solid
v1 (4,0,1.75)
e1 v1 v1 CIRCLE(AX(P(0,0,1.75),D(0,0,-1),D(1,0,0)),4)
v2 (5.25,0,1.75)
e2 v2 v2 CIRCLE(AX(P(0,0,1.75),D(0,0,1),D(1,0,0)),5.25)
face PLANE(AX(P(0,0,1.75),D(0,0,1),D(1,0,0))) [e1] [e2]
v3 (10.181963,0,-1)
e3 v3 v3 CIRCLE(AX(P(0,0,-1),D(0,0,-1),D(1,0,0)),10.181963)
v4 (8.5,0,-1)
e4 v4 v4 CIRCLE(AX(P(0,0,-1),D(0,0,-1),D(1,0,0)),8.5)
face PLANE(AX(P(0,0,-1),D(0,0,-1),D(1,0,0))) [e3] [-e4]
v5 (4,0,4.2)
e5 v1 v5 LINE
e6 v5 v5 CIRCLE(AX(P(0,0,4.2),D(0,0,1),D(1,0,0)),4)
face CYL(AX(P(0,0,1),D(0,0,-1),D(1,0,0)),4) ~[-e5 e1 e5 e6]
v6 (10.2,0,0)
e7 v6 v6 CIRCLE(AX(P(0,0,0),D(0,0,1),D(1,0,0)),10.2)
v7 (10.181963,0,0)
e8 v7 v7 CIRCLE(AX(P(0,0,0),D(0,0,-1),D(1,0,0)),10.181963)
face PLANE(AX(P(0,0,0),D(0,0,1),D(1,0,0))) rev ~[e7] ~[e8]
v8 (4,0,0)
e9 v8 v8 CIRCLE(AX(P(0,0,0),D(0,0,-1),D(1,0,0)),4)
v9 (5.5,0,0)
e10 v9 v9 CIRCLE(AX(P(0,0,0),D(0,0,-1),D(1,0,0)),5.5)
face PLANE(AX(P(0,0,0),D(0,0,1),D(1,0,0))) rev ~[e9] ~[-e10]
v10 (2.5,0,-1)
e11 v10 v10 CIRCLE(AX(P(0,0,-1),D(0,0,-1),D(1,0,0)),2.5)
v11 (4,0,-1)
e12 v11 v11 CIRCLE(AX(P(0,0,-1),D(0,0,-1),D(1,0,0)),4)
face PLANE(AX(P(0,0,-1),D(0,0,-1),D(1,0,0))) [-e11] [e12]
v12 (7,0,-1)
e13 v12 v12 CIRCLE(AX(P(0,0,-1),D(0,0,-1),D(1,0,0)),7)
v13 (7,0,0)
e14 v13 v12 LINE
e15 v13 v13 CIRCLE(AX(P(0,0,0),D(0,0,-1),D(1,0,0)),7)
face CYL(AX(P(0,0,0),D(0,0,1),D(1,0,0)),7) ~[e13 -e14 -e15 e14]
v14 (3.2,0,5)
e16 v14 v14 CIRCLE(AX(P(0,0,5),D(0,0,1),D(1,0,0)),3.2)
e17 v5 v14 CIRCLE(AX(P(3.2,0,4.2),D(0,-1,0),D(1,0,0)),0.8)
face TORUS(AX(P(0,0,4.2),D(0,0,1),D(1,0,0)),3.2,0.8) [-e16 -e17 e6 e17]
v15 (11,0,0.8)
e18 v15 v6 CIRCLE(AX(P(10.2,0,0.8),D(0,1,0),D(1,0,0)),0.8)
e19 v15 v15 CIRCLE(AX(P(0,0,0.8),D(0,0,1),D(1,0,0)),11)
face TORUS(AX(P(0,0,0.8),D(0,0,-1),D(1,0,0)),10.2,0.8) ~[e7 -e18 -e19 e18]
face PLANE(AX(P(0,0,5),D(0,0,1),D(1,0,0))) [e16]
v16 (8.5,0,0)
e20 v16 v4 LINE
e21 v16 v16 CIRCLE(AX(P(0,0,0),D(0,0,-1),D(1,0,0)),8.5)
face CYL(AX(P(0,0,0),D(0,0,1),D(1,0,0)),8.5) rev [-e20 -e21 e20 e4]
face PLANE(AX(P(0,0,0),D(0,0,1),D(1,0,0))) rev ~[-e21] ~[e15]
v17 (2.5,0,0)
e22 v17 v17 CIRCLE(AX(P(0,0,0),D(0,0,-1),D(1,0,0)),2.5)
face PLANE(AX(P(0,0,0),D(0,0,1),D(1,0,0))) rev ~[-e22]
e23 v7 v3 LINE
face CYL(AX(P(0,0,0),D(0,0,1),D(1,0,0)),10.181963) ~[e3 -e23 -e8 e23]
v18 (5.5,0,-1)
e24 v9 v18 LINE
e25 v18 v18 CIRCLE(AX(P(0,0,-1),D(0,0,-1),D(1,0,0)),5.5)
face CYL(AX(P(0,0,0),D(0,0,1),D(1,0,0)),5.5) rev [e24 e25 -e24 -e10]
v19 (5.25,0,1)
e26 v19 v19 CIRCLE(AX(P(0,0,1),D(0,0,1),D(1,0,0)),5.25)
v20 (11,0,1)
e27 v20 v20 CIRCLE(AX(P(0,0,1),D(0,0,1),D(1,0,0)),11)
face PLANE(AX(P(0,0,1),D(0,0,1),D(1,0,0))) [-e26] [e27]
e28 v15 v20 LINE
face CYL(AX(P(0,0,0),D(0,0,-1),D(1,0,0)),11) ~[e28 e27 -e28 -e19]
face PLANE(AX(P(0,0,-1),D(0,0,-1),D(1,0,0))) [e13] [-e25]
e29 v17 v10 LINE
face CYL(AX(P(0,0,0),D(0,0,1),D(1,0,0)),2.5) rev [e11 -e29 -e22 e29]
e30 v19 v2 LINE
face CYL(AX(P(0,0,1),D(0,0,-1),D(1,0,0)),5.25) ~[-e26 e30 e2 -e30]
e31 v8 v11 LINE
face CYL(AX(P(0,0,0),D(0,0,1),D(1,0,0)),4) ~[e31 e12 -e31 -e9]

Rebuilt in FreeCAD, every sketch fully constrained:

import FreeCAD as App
import Part
import Sketcher
from FreeCAD import Vector


def edges_at(feature, points):
    """Names of the edges that pass closest to the given points."""
    edges = feature.Shape.Edges
    near = lambda p: min(range(len(edges)), key=lambda i: edges[i].distToShape(Part.Vertex(*p))[0])
    return sorted({f"Edge{near(p) + 1}" for p in points})

doc = App.newDocument("Part")
body = doc.addObject("PartDesign::Body", "Body")

sketch1 = doc.addObject("Sketcher::SketchObject", "Sketch")
body.addObject(sketch1)
sketch1.AttachmentSupport = (doc.XY_Plane, [""])
sketch1.MapMode = "FlatFace"
sketch1.addGeometry(Part.Circle(Vector(0, 0, 0), Vector(0, 0, 1), 11), False)
sketch1.addConstraint([
    Sketcher.Constraint("Coincident", 0, 3, -1, 1),
    Sketcher.Constraint("Diameter", 0, 22.0),
])
pad1 = doc.addObject("PartDesign::Pad", "Pad")
body.addObject(pad1)
pad1.Profile = sketch1
pad1.Length = 1

sketch2 = doc.addObject("Sketcher::SketchObject", "Sketch001")
body.addObject(sketch2)
sketch2.AttachmentSupport = (doc.XY_Plane, [""])
sketch2.MapMode = "FlatFace"
sketch2.AttachmentOffset = App.Placement(Vector(0, 0, 1), App.Rotation())
sketch2.addGeometry(Part.Circle(Vector(0, 0, 0), Vector(0, 0, 1), 4), False)
sketch2.addConstraint([
    Sketcher.Constraint("Coincident", 0, 3, -1, 1),
    Sketcher.Constraint("Diameter", 0, 8.0),
])
pad2 = doc.addObject("PartDesign::Pad", "Pad001")
body.addObject(pad2)
pad2.Profile = sketch2
pad2.Length = 4
doc.recompute()

fillet = doc.addObject("PartDesign::Fillet", "Fillet")
body.addObject(fillet)
fillet.Base = (pad2, edges_at(pad2, [(-11, 0, 0), (-4, 0, 5)]))
fillet.Radius = 0.8

sketch3 = doc.addObject("Sketcher::SketchObject", "Sketch002")
body.addObject(sketch3)
sketch3.AttachmentSupport = (doc.XY_Plane, [""])
sketch3.MapMode = "FlatFace"
sketch3.AttachmentOffset = App.Placement(Vector(0, 0, 1), App.Rotation())
sketch3.addGeometry(Part.Circle(Vector(0, 0, 0), Vector(0, 0, 1), 5), False)
sketch3.addConstraint([
    Sketcher.Constraint("Coincident", 0, 3, -1, 1),
    Sketcher.Constraint("Diameter", 0, 10.5),
])
pad3 = doc.addObject("PartDesign::Pad", "Pad002")
body.addObject(pad3)
pad3.Profile = sketch3
pad3.Length = 0.75

sketch4 = doc.addObject("Sketcher::SketchObject", "Sketch003")
body.addObject(sketch4)
sketch4.AttachmentSupport = (doc.XY_Plane, [""])
sketch4.MapMode = "FlatFace"
sketch4.addGeometry([
    Part.Circle(Vector(0, 0, 0), Vector(0, 0, 1), 10.2),
    Part.Circle(Vector(0, 0, 0), Vector(0, 0, 1), 8.5),
    Part.Circle(Vector(0, 0, 0), Vector(0, 0, 1), 7),
    Part.Circle(Vector(0, 0, 0), Vector(0, 0, 1), 5.5),
    Part.Circle(Vector(0, 0, 0), Vector(0, 0, 1), 4),
    Part.Circle(Vector(0, 0, 0), Vector(0, 0, 1), 2.5),
], False)
sketch4.addConstraint([
    Sketcher.Constraint("Coincident", 0, 3, -1, 1),
    Sketcher.Constraint("Coincident", 1, 3, -1, 1),
    Sketcher.Constraint("Coincident", 2, 3, -1, 1),
    Sketcher.Constraint("Coincident", 3, 3, -1, 1),
    Sketcher.Constraint("Coincident", 4, 3, -1, 1),
    Sketcher.Constraint("Coincident", 5, 3, -1, 1),
    Sketcher.Constraint("Diameter", 1, 17.0),
    Sketcher.Constraint("Diameter", 2, 14.0),
    Sketcher.Constraint("Diameter", 3, 11.0),
    Sketcher.Constraint("Diameter", 4, 8.0),
    Sketcher.Constraint("Diameter", 5, 5.0),
    Sketcher.Constraint("Diameter", 0, 20.363925),
])
pad4 = doc.addObject("PartDesign::Pad", "Pad003")
body.addObject(pad4)
pad4.Profile = sketch4
pad4.Length = 1
pad4.Reversed = True

doc.recompute()
